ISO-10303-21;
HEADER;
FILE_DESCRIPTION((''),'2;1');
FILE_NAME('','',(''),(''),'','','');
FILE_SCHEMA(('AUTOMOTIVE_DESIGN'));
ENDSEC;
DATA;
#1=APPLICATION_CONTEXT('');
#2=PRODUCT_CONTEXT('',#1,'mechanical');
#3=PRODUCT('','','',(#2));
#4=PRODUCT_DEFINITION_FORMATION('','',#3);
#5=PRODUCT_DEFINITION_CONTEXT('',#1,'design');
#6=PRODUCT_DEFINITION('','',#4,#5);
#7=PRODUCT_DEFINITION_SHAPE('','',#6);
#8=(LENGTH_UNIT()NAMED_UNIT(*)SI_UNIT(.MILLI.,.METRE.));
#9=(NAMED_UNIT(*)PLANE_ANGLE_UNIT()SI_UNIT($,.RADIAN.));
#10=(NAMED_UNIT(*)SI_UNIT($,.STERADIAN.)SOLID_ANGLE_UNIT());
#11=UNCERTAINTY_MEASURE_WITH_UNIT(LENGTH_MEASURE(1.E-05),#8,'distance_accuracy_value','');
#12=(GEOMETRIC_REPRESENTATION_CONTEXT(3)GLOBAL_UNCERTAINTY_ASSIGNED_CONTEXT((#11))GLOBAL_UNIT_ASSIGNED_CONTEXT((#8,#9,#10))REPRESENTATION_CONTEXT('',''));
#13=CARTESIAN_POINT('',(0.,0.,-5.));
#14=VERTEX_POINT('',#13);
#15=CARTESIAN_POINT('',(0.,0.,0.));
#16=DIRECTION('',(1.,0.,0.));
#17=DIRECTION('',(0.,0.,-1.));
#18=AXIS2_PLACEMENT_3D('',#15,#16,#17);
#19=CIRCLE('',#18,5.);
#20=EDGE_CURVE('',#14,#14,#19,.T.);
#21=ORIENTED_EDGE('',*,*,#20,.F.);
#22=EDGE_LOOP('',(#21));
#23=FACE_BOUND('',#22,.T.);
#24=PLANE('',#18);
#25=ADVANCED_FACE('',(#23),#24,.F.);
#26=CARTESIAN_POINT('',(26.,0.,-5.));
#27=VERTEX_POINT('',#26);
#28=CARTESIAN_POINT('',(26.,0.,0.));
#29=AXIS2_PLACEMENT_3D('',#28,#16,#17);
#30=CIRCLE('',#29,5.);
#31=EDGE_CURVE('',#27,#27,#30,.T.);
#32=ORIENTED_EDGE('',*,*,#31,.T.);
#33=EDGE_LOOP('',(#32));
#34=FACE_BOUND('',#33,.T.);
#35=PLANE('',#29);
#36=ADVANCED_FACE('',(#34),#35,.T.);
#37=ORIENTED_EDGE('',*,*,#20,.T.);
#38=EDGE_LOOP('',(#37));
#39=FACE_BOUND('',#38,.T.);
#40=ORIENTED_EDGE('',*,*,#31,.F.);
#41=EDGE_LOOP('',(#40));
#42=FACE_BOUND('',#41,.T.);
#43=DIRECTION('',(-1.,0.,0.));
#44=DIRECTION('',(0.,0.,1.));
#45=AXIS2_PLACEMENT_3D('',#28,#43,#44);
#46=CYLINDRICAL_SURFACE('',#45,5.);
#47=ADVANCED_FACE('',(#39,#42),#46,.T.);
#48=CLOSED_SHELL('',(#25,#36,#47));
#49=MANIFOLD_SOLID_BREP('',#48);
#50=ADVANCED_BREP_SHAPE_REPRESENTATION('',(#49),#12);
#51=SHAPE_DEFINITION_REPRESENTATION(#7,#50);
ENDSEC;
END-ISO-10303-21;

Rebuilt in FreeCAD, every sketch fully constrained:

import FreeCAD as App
import Part
import Sketcher

V = App.Vector

doc = App.newDocument("Part")
body = doc.addObject("PartDesign::Body", "Body")

# Sketch on YZ plane
sketch1 = body.newObject("Sketcher::SketchObject", "Sketch")
sketch1.AttachmentSupport = (doc.getObject("YZ_Plane"), [""])
sketch1.MapMode = "FlatFace"
sketch1.addGeometry(Part.Circle(V(0, 0, 0), V(0, 0, 1), 5), False)
sketch1.addConstraint(Sketcher.Constraint("Coincident", 0, 3, -1, 1))
sketch1.addConstraint(Sketcher.Constraint("Diameter", 0, 10.0))
pad1 = body.newObject("PartDesign::Pad", "Pad")
pad1.Profile = sketch1
pad1.Length = 26

doc.recompute()
